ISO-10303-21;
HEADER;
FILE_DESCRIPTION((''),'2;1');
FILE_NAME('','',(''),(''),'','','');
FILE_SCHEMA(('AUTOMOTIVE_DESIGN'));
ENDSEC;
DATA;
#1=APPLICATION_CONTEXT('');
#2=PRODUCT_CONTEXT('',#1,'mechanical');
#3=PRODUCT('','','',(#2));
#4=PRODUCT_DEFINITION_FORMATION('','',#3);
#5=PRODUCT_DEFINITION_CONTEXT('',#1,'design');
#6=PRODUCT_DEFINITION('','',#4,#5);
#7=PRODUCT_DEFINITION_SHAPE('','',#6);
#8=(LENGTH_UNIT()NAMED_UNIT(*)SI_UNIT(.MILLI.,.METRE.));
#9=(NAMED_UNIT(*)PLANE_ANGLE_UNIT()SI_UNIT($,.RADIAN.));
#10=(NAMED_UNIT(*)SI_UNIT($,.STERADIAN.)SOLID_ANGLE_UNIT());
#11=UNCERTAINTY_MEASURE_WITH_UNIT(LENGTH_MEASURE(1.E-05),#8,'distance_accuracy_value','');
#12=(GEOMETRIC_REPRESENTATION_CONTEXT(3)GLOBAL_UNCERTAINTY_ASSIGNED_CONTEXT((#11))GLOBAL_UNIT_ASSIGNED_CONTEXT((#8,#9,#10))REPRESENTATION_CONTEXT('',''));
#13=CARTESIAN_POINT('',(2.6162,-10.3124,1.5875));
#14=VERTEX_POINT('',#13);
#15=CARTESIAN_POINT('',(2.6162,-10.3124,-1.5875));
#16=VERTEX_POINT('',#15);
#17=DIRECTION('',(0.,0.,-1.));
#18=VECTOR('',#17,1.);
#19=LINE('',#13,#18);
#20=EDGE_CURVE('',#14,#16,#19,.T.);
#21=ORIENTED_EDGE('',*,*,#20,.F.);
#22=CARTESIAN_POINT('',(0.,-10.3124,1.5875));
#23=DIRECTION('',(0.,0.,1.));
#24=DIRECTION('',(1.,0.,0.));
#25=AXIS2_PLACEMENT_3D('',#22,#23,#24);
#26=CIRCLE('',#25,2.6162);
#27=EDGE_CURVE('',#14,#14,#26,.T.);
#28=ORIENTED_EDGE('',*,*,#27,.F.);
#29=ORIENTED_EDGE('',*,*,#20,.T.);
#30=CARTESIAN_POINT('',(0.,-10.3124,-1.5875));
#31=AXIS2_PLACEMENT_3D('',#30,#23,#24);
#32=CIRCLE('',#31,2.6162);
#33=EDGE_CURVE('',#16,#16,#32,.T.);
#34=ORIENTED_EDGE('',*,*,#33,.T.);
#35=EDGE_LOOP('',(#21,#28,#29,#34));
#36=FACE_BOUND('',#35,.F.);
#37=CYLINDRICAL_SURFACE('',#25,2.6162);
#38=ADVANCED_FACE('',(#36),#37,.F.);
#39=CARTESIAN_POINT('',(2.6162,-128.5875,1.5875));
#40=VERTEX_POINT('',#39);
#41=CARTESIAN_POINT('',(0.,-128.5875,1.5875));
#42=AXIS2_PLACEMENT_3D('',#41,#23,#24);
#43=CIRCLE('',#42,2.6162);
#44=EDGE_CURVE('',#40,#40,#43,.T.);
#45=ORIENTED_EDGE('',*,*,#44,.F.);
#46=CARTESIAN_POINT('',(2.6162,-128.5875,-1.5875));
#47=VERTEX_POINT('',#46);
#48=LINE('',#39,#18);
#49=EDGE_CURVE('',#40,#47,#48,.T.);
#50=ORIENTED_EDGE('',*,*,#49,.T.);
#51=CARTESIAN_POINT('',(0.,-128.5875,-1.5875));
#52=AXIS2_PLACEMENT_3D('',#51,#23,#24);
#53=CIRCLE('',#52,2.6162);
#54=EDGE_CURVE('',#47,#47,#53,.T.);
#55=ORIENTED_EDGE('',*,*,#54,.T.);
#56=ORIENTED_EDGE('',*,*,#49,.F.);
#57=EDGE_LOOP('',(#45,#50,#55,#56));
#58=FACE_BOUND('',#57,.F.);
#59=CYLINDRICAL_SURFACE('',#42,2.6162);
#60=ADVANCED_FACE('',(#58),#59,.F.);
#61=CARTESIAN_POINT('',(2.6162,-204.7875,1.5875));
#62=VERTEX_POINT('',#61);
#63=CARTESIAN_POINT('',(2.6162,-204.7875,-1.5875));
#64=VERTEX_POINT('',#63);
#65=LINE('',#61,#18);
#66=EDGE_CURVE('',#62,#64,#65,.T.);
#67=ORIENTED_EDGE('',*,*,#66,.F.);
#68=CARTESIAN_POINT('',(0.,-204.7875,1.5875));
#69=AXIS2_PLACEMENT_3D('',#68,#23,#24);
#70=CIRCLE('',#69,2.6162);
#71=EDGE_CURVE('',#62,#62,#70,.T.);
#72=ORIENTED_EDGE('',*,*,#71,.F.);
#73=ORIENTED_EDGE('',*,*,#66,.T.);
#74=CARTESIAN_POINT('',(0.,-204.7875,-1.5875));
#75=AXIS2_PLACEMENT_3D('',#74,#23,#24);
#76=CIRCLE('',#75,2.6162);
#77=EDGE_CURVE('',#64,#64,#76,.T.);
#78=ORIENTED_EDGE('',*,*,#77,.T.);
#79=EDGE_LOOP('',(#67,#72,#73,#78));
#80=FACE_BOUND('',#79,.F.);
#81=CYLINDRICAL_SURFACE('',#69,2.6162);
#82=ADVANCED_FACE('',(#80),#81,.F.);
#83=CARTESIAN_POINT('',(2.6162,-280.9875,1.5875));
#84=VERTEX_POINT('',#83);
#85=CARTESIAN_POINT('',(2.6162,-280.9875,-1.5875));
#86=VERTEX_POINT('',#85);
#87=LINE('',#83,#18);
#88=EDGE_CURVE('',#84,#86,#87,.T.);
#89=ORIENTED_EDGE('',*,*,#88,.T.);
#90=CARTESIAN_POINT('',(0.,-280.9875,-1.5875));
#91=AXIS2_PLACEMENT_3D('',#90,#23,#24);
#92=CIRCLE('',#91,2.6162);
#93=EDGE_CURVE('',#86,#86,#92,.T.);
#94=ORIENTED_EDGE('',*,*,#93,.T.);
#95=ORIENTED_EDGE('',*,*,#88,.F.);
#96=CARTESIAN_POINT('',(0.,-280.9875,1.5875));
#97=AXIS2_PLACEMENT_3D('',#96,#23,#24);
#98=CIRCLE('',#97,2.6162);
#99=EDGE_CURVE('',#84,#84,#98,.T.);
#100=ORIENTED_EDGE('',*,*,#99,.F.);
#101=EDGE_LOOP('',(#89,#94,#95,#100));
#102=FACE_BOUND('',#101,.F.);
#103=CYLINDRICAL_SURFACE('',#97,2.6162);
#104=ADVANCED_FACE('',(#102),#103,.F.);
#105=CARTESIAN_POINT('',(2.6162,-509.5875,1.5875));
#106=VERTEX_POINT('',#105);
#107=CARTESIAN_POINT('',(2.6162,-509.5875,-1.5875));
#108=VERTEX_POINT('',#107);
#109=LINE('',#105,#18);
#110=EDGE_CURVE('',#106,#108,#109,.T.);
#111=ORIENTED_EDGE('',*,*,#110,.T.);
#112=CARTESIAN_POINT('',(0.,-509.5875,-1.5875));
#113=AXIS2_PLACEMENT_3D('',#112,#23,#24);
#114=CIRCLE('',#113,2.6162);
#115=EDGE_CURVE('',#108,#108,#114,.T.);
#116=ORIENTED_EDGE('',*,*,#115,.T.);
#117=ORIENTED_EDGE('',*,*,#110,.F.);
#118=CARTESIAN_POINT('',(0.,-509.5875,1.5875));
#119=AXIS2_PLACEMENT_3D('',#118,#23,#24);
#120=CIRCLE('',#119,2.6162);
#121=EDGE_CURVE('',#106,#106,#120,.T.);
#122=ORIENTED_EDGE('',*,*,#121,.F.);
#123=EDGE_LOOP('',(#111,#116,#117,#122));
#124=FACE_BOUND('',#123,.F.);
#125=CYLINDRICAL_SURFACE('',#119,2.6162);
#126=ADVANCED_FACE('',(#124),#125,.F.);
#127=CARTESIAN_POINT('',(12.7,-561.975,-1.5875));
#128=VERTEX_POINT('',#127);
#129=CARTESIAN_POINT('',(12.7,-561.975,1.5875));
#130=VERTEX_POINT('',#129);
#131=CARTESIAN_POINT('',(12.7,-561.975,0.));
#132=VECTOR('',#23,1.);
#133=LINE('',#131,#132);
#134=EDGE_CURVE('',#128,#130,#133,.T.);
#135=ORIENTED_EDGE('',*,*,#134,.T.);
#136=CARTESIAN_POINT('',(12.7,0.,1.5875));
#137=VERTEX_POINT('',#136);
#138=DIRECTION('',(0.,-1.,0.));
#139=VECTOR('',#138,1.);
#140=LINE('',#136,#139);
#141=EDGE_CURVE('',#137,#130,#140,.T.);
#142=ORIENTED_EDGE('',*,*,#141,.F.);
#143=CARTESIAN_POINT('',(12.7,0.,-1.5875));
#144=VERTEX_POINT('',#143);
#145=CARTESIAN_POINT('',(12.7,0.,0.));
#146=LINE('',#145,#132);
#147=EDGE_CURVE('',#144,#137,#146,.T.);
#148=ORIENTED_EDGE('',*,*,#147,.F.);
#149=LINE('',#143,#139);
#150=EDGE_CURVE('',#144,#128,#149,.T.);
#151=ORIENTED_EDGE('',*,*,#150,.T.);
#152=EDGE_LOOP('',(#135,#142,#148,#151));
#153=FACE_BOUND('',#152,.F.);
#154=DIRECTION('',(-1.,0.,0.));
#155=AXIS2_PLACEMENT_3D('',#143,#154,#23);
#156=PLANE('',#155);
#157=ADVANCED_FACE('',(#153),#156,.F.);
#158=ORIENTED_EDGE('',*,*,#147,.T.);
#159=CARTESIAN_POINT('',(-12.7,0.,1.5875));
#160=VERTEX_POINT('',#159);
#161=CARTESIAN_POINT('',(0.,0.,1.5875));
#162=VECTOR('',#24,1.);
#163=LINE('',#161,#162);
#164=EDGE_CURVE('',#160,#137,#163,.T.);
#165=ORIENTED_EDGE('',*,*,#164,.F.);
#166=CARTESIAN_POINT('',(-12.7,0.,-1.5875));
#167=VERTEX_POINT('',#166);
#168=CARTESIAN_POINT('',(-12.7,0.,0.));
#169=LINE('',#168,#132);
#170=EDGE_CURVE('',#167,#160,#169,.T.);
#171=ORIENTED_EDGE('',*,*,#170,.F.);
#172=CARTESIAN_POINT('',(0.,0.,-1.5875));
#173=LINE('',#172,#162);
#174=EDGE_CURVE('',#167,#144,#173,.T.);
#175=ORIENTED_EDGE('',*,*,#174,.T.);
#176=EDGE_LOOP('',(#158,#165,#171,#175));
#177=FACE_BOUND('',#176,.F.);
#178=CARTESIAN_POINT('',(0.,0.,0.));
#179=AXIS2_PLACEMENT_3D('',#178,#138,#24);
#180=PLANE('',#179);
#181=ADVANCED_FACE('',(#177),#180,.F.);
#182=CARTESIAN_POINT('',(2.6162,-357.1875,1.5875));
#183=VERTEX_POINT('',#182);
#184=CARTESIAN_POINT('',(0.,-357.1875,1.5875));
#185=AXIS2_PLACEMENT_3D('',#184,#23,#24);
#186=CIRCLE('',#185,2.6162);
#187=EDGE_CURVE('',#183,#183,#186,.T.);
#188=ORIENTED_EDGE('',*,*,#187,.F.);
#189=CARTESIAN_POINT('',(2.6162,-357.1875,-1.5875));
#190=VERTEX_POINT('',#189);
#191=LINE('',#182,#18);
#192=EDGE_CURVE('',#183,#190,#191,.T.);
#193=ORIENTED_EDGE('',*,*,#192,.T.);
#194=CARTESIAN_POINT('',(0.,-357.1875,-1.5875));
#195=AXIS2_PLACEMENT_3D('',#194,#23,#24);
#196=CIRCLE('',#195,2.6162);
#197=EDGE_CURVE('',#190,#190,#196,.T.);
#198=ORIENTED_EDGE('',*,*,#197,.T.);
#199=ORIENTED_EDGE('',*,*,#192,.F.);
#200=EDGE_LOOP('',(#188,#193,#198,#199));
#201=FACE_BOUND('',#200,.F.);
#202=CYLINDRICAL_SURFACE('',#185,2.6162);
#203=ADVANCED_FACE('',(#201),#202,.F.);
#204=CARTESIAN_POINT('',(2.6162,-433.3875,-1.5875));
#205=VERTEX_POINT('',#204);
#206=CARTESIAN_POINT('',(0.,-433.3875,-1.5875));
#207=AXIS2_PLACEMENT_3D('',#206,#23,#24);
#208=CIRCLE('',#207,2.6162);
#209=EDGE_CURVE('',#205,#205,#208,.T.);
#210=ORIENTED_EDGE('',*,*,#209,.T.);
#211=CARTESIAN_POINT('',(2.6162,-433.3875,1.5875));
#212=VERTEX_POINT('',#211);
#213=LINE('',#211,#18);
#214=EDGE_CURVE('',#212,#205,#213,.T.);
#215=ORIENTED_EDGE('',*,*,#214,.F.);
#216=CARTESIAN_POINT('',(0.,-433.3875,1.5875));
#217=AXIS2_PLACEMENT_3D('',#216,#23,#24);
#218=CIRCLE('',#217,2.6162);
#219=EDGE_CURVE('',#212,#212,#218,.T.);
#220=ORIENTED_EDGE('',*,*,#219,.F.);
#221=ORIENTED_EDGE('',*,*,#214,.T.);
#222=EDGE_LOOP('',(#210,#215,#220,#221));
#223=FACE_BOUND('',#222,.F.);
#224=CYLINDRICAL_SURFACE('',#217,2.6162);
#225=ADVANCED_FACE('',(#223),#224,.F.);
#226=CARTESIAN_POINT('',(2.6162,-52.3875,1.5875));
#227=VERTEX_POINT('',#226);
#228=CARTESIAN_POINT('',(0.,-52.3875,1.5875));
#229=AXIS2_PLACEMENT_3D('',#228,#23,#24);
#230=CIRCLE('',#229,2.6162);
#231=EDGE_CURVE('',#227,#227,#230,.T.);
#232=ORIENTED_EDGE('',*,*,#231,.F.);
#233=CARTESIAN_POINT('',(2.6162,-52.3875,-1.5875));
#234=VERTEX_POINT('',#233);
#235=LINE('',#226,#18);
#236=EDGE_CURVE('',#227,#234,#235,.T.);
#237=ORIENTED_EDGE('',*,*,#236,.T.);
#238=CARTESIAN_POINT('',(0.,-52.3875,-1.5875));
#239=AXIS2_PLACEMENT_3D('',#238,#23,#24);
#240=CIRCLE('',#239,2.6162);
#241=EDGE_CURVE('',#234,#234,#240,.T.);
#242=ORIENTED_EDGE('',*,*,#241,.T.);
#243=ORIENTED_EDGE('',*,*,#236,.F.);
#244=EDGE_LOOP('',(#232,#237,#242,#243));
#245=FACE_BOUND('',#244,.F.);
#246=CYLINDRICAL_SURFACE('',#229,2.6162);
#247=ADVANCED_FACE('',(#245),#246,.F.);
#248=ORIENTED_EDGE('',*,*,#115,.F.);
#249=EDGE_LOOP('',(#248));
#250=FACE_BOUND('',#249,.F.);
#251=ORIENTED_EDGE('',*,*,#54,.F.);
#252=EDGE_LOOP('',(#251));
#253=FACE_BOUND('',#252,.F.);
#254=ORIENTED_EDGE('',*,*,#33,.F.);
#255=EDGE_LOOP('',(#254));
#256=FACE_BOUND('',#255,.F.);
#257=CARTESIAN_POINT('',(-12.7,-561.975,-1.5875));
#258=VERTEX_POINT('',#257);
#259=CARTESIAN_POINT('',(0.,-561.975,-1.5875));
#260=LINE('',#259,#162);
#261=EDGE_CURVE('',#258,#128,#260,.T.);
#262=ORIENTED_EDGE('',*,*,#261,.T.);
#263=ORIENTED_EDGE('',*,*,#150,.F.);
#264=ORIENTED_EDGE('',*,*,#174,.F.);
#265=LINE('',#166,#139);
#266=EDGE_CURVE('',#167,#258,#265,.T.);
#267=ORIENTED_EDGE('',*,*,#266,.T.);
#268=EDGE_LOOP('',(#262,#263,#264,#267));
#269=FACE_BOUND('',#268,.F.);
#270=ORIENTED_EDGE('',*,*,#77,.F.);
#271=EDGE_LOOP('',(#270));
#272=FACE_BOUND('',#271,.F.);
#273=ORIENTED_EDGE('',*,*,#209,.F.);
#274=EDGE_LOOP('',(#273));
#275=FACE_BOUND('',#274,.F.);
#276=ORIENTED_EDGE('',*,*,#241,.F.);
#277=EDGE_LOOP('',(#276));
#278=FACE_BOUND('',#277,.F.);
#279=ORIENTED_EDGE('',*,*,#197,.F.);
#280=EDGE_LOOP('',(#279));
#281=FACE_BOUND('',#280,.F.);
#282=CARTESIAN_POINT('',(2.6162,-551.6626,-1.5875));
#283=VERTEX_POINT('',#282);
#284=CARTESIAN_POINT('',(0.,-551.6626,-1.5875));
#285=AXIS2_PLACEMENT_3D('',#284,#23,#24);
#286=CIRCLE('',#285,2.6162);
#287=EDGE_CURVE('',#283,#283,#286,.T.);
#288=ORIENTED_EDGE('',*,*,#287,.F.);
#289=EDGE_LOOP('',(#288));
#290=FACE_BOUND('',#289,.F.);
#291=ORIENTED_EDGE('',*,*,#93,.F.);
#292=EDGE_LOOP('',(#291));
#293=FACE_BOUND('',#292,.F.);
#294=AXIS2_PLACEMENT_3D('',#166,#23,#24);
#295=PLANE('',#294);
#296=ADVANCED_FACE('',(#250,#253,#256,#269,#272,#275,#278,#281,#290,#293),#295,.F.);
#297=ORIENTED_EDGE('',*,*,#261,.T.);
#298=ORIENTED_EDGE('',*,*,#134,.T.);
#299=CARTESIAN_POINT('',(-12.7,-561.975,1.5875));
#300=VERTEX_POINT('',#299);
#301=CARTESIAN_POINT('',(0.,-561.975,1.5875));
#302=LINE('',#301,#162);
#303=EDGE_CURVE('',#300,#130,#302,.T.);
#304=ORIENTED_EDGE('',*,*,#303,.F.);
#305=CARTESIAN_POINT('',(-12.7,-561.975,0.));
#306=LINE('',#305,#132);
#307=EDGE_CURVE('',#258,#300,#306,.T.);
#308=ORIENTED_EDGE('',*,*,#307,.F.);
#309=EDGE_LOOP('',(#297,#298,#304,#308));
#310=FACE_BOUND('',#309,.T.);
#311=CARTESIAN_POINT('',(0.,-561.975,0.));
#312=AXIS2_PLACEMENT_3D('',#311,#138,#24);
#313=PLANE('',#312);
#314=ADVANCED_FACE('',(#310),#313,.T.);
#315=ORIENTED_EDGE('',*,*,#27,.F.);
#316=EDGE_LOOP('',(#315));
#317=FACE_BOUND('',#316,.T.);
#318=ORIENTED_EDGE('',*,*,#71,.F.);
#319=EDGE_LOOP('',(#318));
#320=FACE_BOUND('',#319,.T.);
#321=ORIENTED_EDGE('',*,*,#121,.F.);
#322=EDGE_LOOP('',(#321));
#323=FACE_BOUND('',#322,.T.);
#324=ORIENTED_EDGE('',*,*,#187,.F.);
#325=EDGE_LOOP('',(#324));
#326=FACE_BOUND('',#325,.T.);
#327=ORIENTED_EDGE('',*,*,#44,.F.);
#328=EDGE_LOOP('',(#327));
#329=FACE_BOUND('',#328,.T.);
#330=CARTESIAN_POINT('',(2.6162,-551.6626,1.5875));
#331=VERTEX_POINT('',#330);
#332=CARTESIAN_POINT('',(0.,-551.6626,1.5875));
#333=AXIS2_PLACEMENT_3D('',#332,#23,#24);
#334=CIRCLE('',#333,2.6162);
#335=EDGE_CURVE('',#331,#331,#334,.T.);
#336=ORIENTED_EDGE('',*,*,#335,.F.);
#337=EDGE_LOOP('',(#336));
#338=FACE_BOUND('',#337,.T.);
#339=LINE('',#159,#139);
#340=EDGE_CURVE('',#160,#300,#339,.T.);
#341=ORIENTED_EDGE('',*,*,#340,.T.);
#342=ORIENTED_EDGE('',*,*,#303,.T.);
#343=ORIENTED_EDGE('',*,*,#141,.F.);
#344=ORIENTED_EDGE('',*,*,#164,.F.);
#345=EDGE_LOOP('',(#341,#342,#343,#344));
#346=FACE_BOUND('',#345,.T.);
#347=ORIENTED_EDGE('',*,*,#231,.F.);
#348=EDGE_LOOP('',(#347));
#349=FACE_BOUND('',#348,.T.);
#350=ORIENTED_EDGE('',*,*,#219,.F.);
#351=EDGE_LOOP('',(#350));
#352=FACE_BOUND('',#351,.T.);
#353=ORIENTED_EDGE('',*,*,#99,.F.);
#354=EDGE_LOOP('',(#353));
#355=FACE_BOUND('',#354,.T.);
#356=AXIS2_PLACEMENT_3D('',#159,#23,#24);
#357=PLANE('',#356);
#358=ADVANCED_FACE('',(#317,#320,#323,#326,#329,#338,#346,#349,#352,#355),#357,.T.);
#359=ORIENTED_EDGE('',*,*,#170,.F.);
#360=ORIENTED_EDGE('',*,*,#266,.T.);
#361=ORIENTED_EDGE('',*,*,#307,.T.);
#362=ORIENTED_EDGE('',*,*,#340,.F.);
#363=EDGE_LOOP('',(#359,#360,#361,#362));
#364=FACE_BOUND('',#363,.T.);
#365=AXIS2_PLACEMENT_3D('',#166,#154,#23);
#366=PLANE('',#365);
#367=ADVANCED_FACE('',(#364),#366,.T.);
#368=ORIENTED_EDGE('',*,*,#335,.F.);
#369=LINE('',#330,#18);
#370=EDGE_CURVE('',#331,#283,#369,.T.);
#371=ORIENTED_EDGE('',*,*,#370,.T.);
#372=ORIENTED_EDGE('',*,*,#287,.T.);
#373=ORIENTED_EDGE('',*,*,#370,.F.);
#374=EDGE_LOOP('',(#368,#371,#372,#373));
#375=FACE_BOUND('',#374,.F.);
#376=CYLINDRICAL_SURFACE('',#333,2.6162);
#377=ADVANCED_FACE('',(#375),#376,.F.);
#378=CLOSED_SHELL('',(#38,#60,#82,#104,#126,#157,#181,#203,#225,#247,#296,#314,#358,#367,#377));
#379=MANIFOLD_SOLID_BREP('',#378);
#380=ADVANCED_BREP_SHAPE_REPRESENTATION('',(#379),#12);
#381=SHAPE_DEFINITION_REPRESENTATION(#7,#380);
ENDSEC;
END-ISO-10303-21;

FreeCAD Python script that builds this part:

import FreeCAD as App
import Part
import Sketcher

V = App.Vector
Q = App.Units.Quantity

doc = App.newDocument("Part")
body = doc.addObject("PartDesign::Body", "Body")

sketch1 = doc.addObject("Sketcher::SketchObject", "Sketch")
body.addObject(sketch1)
sketch1.AttachmentSupport = (doc.XZ_Plane, [""])
sketch1.MapMode = "FlatFace"
sketch1.addGeometry(Part.LineSegment(V(-12.7, 1.5875, 0), V(-12.7, -1.5875, 0)), False)
sketch1.addGeometry(Part.LineSegment(V(-12.7, -1.5875, 0), V(12.7, -1.5875, 0)), False)
sketch1.addGeometry(Part.LineSegment(V(12.7, -1.5875, 0), V(12.7, 1.5875, 0)), False)
sketch1.addGeometry(Part.LineSegment(V(12.7, 1.5875, 0), V(-12.7, 1.5875, 0)), False)
sketch1.addConstraint(Sketcher.Constraint("Coincident", 0, 2, 1, 1))
sketch1.addConstraint(Sketcher.Constraint("Coincident", 1, 2, 2, 1))
sketch1.addConstraint(Sketcher.Constraint("Coincident", 2, 2, 3, 1))
sketch1.addConstraint(Sketcher.Constraint("Coincident", 3, 2, 0, 1))
sketch1.addConstraint(Sketcher.Constraint("Vertical", 0))
sketch1.addConstraint(Sketcher.Constraint("Horizontal", 1))
sketch1.addConstraint(Sketcher.Constraint("Vertical", 2))
sketch1.addConstraint(Sketcher.Constraint("Horizontal", 3))
sketch1.addConstraint(Sketcher.Constraint("Symmetric", 0, 2, 2, 2, -1, 1))
sketch1.addConstraint(Sketcher.Constraint("DistanceX", 1, 1, 1, 2, Q("1 in")))
sketch1.addConstraint(Sketcher.Constraint("DistanceY", 0, 2, 0, 1, Q("0.125 in")))
pad1 = doc.addObject("PartDesign::Pad", "Pad")
body.addObject(pad1)
pad1.Profile = sketch1
pad1.Length = Q("22.125 in")

sketch2 = doc.addObject("Sketcher::SketchObject", "Sketch001")
body.addObject(sketch2)
sketch2.AttachmentSupport = (doc.XY_Plane, [""])
sketch2.MapMode = "FlatFace"
sketch2.AttachmentOffset = App.Placement(V(0, 0, 0.0625 * 25.4), App.Rotation())
sketch2.addGeometry(Part.Circle(V(0, -551.6626, 0), V(0, 0, 1), 2.6162), False)
sketch2.addGeometry(Part.Circle(V(0, -509.5875, 0), V(0, 0, 1), 2.6162), False)
sketch2.addGeometry(Part.Circle(V(0, -433.3875, 0), V(0, 0, 1), 2.6162), False)
sketch2.addGeometry(Part.Circle(V(0, -357.1875, 0), V(0, 0, 1), 2.6162), False)
sketch2.addGeometry(Part.Circle(V(0, -280.9875, 0), V(0, 0, 1), 2.6162), False)
sketch2.addGeometry(Part.Circle(V(0, -204.7875, 0), V(0, 0, 1), 2.6162), False)
sketch2.addGeometry(Part.Circle(V(0, -128.5875, 0), V(0, 0, 1), 2.6162), False)
sketch2.addGeometry(Part.Circle(V(0, -52.3875, 0), V(0, 0, 1), 2.6162), False)
sketch2.addGeometry(Part.Circle(V(0, -10.3124, 0), V(0, 0, 1), 2.6162), False)
sketch2.addConstraint(Sketcher.Constraint("Equal", 0, 1))
sketch2.addConstraint(Sketcher.Constraint("Equal", 1, 2))
sketch2.addConstraint(Sketcher.Constraint("Equal", 2, 3))
sketch2.addConstraint(Sketcher.Constraint("Equal", 3, 4))
sketch2.addConstraint(Sketcher.Constraint("Equal", 4, 5))
sketch2.addConstraint(Sketcher.Constraint("Equal", 5, 6))
sketch2.addConstraint(Sketcher.Constraint("Equal", 6, 7))
sketch2.addConstraint(Sketcher.Constraint("Equal", 7, 8))
sketch2.addConstraint(Sketcher.Constraint("PointOnObject", 0, 3, -2))
sketch2.addConstraint(Sketcher.Constraint("PointOnObject", 1, 3, -2))
sketch2.addConstraint(Sketcher.Constraint("PointOnObject", 2, 3, -2))
sketch2.addConstraint(Sketcher.Constraint("PointOnObject", 3, 3, -2))
sketch2.addConstraint(Sketcher.Constraint("PointOnObject", 4, 3, -2))
sketch2.addConstraint(Sketcher.Constraint("PointOnObject", 5, 3, -2))
sketch2.addConstraint(Sketcher.Constraint("PointOnObject", 6, 3, -2))
sketch2.addConstraint(Sketcher.Constraint("PointOnObject", 7, 3, -2))
sketch2.addConstraint(Sketcher.Constraint("PointOnObject", 8, 3, -2))
sketch2.addConstraint(Sketcher.Constraint("Diameter", 0, Q("0.206 in")))
sketch2.addConstraint(Sketcher.Constraint("DistanceY", 1, 3, 2, 3, Q("3 in")))
sketch2.addConstraint(Sketcher.Constraint("DistanceY", 2, 3, 3, 3, Q("3 in")))
sketch2.addConstraint(Sketcher.Constraint("DistanceY", 3, 3, 4, 3, Q("3 in")))
sketch2.addConstraint(Sketcher.Constraint("DistanceY", 4, 3, 5, 3, Q("3 in")))
sketch2.addConstraint(Sketcher.Constraint("DistanceY", 5, 3, 6, 3, Q("3 in")))
sketch2.addConstraint(Sketcher.Constraint("DistanceY", 6, 3, 7, 3, Q("3 in")))
sketch2.addConstraint(Sketcher.Constraint("DistanceY", 0, 3, -1, 1, Q("21.719 in")))
sketch2.addConstraint(Sketcher.Constraint("DistanceY", 1, 3, -1, 1, Q("20.0625 in")))
sketch2.addConstraint(Sketcher.Constraint("DistanceY", 8, 3, -1, 1, Q("0.406 in")))
pocket1 = doc.addObject("PartDesign::Pocket", "Pocket")
body.addObject(pocket1)
pocket1.Profile = sketch2
pocket1.Type = "ThroughAll"

doc.recompute()
